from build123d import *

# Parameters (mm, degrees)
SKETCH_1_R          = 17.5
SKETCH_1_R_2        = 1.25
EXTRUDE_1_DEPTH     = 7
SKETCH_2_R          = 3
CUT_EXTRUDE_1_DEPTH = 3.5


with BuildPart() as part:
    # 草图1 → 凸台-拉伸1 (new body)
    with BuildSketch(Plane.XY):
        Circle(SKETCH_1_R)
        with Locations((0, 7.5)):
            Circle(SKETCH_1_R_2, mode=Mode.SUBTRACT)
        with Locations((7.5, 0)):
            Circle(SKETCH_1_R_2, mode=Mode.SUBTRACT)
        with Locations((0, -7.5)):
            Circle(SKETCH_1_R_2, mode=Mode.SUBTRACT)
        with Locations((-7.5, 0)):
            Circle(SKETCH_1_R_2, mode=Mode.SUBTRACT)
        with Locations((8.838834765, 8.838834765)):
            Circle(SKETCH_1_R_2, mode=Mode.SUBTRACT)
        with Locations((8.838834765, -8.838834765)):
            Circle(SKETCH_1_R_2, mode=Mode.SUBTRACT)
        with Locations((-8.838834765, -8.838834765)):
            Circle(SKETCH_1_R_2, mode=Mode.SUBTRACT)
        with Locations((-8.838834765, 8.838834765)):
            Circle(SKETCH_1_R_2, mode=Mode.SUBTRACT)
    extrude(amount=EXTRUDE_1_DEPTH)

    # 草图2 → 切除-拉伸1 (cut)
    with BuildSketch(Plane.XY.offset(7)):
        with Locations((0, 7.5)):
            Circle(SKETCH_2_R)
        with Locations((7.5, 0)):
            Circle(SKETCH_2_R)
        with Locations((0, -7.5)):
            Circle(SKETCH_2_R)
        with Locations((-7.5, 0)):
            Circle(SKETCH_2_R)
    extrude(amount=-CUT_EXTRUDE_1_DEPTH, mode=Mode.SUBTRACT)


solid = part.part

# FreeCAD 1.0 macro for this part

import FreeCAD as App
import Part
import Sketcher
from FreeCAD import Vector

doc = App.newDocument("Part")
body = doc.addObject("PartDesign::Body", "Body")

# Sketch on XY plane
sketch1 = doc.addObject("Sketcher::SketchObject", "Sketch")
body.addObject(sketch1)
sketch1.AttachmentSupport = (doc.XY_Plane, [""])
sketch1.MapMode = "FlatFace"
sketch1.addGeometry([
    Part.Circle(Vector(0, 0, 0), Vector(0, 0, 1), 17.5),  # 0
    Part.Circle(Vector(-8.838835, -8.838835, 0), Vector(0, 0, 1), 1.25),  # 1
    Part.Circle(Vector(0, -7.5, 0), Vector(0, 0, 1), 1.25),  # 2
    Part.Circle(Vector(8.838835, -8.838835, 0), Vector(0, 0, 1), 1.25),  # 3
    Part.Circle(Vector(-7.5, 0, 0), Vector(0, 0, 1), 1.25),  # 4
    Part.Circle(Vector(-8.838835, 8.838835, 0), Vector(0, 0, 1), 1.25),  # 5
    Part.Circle(Vector(7.5, 0, 0), Vector(0, 0, 1), 1.25),  # 6
    Part.Circle(Vector(0, 7.5, 0), Vector(0, 0, 1), 1.25),  # 7
    Part.Circle(Vector(8.838835, 8.838835, 0), Vector(0, 0, 1), 1.25),  # 8
], False)
sketch1.addConstraint([
    Sketcher.Constraint("Coincident", 0, 3, -1, 1),
    Sketcher.Constraint("Equal", 1, 2),
    Sketcher.Constraint("Equal", 2, 3),
    Sketcher.Constraint("Equal", 3, 4),
    Sketcher.Constraint("Equal", 4, 5),
    Sketcher.Constraint("Equal", 5, 6),
    Sketcher.Constraint("Equal", 6, 7),
    Sketcher.Constraint("Equal", 7, 8),
    Sketcher.Constraint("Symmetric", 3, 3, 5, 3, -1, 1),
    Sketcher.Constraint("Symmetric", 4, 3, 6, 3, -1, 1),
    Sketcher.Constraint("Symmetric", 2, 3, 7, 3, -1, 1),
    Sketcher.Constraint("Symmetric", 1, 3, 8, 3, -1, 1),
    Sketcher.Constraint("Symmetric", 1, 3, 3, 3, -2),
    Sketcher.Constraint("PointOnObject", 2, 3, -2),
    Sketcher.Constraint("PointOnObject", 4, 3, -1),
    Sketcher.Constraint("Diameter", 0, 35.0),
    Sketcher.Constraint("Diameter", 1, 2.5),
    Sketcher.Constraint("DistanceX", 4, 3, 6, 3, 15.0),
    Sketcher.Constraint("DistanceY", 2, 3, 7, 3, 15.0),
    Sketcher.Constraint("DistanceX", 1, 3, 3, 3, 17.67767),
    Sketcher.Constraint("DistanceY", 1, 3, 5, 3, 17.67767),
])
pad1 = doc.addObject("PartDesign::Pad", "Pad")
body.addObject(pad1)
pad1.Profile = sketch1
pad1.Length = 7

# Sketch on XY plane
sketch2 = doc.addObject("Sketcher::SketchObject", "Sketch001")
body.addObject(sketch2)
sketch2.AttachmentSupport = (doc.XY_Plane, [""])
sketch2.MapMode = "FlatFace"
sketch2.AttachmentOffset = App.Placement(Vector(0, 0, 7), App.Rotation())
sketch2.addGeometry([
    Part.Circle(Vector(0, 7.5, 0), Vector(0, 0, 1), 3),
    Part.Circle(Vector(7.5, 0, 0), Vector(0, 0, 1), 3),
    Part.Circle(Vector(0, -7.5, 0), Vector(0, 0, 1), 3),
    Part.Circle(Vector(-7.5, 0, 0), Vector(0, 0, 1), 3),
], False)
sketch2.addConstraint([
    Sketcher.Constraint("Equal", 0, 1),
    Sketcher.Constraint("Equal", 1, 2),
    Sketcher.Constraint("Equal", 2, 3),
    Sketcher.Constraint("Symmetric", 0, 3, 2, 3, -1, 1),
    Sketcher.Constraint("Symmetric", 1, 3, 3, 3, -1, 1),
    Sketcher.Constraint("PointOnObject", 0, 3, -2),
    Sketcher.Constraint("PointOnObject", 1, 3, -1),
    Sketcher.Constraint("Diameter", 0, 6.0),
    Sketcher.Constraint("DistanceY", 2, 3, 0, 3, 15.0),
    Sketcher.Constraint("DistanceX", 3, 3, 1, 3, 15.0),
])
pocket1 = doc.addObject("PartDesign::Pocket", "Pocket")
body.addObject(pocket1)
pocket1.Profile = sketch2
pocket1.Length = 3.5

doc.recompute()
